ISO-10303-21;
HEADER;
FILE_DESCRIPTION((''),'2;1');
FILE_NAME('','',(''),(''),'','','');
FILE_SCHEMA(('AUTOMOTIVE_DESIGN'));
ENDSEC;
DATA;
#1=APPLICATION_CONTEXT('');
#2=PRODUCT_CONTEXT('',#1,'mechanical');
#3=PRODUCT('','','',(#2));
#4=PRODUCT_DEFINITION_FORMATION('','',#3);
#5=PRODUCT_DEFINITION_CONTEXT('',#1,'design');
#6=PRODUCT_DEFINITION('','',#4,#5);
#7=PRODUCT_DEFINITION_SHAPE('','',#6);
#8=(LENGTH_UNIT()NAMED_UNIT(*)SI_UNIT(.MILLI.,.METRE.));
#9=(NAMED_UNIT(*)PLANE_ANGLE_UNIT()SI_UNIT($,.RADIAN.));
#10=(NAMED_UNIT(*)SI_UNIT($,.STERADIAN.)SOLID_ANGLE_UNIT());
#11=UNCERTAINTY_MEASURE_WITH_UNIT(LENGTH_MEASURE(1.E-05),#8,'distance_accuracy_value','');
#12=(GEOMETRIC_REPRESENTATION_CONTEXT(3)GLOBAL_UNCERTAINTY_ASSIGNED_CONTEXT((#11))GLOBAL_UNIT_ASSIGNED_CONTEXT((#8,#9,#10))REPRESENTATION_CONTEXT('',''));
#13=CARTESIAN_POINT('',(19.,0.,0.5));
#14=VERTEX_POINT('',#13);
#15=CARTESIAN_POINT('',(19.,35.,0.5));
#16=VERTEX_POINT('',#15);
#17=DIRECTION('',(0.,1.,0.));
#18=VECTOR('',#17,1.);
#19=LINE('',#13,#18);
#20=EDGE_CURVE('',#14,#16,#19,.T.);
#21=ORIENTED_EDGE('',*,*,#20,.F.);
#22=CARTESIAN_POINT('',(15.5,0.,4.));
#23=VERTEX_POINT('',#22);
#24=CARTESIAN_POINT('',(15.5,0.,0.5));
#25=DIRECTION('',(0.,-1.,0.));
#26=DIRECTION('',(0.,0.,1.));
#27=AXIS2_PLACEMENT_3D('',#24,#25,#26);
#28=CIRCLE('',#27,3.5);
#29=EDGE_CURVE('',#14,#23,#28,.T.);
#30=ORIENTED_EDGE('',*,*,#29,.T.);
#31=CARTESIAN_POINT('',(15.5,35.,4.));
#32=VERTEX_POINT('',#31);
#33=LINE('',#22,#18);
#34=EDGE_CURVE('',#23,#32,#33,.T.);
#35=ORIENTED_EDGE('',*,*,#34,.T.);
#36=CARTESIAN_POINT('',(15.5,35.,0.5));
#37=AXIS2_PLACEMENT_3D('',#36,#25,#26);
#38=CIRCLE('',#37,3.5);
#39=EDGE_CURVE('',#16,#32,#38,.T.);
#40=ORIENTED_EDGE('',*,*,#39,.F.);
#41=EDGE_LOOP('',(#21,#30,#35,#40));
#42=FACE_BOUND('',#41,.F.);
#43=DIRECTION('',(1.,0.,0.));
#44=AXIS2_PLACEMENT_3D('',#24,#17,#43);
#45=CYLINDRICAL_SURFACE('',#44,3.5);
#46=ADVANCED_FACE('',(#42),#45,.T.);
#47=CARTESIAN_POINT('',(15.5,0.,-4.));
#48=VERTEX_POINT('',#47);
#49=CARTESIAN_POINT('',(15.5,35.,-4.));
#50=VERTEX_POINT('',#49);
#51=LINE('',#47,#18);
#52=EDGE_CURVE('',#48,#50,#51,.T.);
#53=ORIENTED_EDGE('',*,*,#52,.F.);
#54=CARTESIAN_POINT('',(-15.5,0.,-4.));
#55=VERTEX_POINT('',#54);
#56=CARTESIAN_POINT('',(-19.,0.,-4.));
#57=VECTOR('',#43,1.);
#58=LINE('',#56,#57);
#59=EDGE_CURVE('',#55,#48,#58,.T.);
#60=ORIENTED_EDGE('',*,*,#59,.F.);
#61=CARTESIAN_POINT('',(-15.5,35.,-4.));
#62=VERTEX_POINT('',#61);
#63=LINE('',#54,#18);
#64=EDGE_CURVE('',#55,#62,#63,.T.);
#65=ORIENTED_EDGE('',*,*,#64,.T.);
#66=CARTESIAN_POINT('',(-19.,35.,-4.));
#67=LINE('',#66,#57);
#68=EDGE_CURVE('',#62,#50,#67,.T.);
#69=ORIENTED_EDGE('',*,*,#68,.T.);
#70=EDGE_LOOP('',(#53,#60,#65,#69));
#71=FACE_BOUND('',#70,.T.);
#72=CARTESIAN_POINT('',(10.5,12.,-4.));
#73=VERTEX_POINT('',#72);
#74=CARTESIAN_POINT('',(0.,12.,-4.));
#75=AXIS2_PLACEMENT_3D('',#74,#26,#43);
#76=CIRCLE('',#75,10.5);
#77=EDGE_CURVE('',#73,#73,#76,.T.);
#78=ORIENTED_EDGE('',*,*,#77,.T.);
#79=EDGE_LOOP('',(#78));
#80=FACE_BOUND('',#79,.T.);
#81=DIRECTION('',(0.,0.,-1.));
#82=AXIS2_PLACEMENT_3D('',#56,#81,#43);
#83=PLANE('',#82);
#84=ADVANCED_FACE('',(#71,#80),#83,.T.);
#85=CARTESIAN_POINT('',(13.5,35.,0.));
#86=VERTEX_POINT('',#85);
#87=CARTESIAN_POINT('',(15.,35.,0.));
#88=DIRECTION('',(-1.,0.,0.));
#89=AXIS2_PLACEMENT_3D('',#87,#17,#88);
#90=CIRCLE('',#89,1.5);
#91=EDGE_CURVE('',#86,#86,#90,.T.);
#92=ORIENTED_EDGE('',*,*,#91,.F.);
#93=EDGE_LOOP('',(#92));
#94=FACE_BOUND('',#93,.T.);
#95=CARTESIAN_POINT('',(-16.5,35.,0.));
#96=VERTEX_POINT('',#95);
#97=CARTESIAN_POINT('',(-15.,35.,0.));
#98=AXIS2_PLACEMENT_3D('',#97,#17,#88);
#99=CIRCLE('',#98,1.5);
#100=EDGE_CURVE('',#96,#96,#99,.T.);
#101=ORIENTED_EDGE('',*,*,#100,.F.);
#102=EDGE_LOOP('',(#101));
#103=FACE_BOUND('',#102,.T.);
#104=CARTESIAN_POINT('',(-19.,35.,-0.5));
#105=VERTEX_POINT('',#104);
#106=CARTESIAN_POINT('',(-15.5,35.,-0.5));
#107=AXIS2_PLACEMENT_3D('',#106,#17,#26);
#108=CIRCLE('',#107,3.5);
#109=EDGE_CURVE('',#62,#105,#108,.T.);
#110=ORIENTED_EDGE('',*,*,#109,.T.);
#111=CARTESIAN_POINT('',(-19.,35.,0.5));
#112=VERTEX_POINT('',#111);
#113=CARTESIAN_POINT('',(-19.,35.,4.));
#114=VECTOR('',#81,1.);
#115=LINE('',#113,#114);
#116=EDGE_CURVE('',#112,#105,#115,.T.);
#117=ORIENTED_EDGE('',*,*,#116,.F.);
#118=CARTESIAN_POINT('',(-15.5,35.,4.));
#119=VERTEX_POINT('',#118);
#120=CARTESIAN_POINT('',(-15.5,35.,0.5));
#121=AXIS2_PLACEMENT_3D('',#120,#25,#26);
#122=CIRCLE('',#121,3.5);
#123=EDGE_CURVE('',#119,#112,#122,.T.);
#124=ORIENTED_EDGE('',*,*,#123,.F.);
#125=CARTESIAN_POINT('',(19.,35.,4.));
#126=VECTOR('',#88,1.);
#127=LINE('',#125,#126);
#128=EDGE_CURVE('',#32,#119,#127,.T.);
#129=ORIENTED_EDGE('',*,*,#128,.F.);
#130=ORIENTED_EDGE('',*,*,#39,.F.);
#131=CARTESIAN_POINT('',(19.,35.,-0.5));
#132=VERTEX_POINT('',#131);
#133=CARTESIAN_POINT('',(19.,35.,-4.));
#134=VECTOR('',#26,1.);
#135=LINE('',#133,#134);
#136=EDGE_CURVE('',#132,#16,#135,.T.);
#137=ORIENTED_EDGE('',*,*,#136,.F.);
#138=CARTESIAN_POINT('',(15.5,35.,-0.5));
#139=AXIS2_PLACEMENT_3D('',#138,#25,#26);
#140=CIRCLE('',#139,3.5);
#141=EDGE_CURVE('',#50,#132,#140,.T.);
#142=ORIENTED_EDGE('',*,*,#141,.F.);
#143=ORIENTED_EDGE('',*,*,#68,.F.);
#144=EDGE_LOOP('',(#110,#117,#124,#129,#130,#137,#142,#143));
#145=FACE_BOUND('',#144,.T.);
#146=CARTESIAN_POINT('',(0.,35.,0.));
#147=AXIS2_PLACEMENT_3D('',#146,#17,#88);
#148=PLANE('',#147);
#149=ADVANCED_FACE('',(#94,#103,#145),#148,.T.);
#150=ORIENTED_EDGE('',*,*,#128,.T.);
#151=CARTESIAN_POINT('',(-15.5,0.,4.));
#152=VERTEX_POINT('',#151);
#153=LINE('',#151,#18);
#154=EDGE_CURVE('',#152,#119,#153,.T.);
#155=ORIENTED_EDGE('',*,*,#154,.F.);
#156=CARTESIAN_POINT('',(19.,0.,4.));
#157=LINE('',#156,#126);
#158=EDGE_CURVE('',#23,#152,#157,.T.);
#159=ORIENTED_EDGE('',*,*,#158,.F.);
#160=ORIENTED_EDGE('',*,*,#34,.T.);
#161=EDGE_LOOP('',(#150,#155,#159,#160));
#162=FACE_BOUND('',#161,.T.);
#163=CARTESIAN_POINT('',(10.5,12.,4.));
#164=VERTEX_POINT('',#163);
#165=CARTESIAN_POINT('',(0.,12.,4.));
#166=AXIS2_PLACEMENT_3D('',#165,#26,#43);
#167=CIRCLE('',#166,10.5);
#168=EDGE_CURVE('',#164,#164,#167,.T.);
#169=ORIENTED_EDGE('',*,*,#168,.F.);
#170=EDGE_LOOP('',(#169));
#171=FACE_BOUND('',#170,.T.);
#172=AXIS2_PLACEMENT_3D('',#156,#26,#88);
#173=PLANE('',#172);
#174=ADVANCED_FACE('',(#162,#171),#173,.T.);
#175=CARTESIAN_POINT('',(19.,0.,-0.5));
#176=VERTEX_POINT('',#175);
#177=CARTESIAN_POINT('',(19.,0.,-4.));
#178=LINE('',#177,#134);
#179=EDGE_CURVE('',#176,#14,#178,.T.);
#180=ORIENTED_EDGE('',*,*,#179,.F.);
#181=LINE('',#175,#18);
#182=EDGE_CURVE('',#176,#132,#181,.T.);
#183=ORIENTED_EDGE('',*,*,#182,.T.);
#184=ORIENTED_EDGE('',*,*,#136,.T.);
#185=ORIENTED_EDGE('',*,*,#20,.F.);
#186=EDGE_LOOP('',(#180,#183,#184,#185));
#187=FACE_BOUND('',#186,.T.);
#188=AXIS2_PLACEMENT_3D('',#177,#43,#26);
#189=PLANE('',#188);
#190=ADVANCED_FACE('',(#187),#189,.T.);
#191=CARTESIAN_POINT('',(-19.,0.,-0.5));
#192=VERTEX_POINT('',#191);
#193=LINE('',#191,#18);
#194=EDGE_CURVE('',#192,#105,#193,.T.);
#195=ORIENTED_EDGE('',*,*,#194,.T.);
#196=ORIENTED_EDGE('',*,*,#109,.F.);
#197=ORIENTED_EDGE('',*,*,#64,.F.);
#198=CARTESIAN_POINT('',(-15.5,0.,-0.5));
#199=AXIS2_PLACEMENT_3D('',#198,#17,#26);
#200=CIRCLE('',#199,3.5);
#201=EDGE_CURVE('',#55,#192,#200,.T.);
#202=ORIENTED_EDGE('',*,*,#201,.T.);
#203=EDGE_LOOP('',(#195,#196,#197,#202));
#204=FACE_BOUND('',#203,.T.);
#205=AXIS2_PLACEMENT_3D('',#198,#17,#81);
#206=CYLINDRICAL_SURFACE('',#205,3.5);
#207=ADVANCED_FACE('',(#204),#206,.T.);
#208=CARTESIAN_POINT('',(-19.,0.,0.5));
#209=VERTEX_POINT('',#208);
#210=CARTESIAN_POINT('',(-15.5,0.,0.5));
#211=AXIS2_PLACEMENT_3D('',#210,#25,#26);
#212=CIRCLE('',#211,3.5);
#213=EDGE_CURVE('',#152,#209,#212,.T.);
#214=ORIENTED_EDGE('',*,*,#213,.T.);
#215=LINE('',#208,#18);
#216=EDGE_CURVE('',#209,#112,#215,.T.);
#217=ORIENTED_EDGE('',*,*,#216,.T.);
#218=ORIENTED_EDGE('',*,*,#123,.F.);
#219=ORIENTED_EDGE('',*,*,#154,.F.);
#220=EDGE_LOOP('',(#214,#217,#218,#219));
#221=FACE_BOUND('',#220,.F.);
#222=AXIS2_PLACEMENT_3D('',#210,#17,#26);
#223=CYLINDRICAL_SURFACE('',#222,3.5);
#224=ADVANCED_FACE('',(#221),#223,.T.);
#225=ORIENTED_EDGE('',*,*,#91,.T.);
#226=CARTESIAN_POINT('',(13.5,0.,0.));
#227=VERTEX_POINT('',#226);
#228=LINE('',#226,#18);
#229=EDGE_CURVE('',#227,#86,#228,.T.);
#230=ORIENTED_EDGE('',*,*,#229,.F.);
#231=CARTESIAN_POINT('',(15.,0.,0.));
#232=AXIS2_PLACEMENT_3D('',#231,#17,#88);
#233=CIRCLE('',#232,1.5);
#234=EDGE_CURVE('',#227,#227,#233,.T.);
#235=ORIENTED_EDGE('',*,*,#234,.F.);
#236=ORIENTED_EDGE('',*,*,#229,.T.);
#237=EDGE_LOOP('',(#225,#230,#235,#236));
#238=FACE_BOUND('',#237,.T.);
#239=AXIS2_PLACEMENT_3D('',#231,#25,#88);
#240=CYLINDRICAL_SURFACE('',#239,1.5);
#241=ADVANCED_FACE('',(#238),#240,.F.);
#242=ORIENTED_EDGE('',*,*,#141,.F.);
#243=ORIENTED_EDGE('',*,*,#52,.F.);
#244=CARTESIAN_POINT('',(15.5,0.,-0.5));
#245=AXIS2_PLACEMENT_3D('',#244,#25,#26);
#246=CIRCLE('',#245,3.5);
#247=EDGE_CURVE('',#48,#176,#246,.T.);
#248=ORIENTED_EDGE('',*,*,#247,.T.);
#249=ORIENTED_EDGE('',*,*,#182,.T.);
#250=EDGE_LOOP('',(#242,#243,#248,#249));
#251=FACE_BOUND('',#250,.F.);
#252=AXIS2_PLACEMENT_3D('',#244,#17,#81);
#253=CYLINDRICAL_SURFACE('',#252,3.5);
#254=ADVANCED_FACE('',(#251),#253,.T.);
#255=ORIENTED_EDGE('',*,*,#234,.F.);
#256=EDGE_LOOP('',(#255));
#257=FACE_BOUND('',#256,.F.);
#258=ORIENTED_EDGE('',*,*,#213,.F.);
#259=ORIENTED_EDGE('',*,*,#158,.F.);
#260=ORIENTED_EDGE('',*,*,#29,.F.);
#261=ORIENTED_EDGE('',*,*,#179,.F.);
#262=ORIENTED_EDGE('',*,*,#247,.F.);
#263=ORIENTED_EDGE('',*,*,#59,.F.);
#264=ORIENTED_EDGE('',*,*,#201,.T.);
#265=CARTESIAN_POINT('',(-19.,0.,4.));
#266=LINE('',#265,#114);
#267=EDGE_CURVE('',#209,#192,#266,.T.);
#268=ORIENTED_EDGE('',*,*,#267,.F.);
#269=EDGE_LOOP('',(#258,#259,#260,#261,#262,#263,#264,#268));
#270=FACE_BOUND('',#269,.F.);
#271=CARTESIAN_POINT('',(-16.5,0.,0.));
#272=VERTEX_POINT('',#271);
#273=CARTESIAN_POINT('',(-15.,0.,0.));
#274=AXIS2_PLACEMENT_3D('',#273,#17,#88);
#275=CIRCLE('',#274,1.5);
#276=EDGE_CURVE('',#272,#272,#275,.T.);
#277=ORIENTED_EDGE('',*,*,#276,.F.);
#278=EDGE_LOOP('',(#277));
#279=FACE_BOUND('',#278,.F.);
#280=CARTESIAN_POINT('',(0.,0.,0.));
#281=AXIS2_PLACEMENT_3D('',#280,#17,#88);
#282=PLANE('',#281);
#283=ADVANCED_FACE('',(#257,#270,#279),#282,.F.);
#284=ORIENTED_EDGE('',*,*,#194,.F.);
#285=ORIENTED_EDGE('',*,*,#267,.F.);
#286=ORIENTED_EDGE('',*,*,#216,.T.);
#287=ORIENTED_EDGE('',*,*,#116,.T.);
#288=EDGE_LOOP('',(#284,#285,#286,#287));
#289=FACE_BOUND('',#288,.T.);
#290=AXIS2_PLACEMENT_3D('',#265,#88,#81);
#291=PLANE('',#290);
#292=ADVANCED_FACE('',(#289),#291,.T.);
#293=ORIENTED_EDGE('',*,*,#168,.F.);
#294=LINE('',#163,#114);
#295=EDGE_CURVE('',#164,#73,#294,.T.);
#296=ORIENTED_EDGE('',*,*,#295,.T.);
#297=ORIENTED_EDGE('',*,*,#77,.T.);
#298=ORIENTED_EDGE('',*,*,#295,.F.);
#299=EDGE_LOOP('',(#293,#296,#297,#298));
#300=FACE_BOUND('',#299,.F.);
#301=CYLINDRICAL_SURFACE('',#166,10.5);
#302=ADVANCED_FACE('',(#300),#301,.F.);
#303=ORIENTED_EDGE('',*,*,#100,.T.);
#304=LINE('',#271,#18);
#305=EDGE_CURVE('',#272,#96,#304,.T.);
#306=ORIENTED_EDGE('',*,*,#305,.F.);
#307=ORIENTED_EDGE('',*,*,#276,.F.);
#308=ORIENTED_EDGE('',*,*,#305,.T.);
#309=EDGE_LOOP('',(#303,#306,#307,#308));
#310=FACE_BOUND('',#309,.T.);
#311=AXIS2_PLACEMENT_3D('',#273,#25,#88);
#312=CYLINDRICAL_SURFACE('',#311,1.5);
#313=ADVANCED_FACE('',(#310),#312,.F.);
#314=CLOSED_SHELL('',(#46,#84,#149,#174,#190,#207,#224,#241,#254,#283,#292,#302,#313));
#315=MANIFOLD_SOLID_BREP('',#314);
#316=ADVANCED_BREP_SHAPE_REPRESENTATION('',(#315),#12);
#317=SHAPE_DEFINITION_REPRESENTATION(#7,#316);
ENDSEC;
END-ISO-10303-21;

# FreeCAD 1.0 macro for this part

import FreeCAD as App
import Part
import Sketcher


def edges_at(feature, points):
    """Names of the edges that pass closest to the given points."""
    edges = feature.Shape.Edges
    near = lambda p: min(range(len(edges)), key=lambda i: edges[i].distToShape(Part.Vertex(*p))[0])
    return sorted({f"Edge{near(p) + 1}" for p in points})


def add_polygon(sketch, points):
    """Adds a closed chain of lines whose ends are joined by coincident constraints."""
    first, n = sketch.GeometryCount, len(points)
    for a, b in zip(points, points[1:] + points[:1]):
        sketch.addGeometry(Part.LineSegment(App.Vector(*a, 0), App.Vector(*b, 0)), False)
    for i in range(n):
        sketch.addConstraint(Sketcher.Constraint("Coincident", first + i, 2, first + (i + 1) % n, 1))

doc = App.newDocument("Part")
body = doc.addObject("PartDesign::Body", "Body")

sketch1 = body.newObject("Sketcher::SketchObject", "Sketch")
sketch1.AttachmentSupport = (doc.getObject("XZ_Plane"), [""])
sketch1.MapMode = "FlatFace"
add_polygon(sketch1, [(19, -4), (-19, -4), (-19, 4), (19, 4)])
sketch1.addGeometry(Part.Circle(App.Vector(15, 0, 0), App.Vector(0, 0, 1), 1.5), False)
sketch1.addGeometry(Part.Circle(App.Vector(-15, 0, 0), App.Vector(0, 0, 1), 1.5), False)
sketch1.addConstraint([
    Sketcher.Constraint("Horizontal", 0),
    Sketcher.Constraint("Vertical", 1),
    Sketcher.Constraint("Horizontal", 2),
    Sketcher.Constraint("Vertical", 3),
    Sketcher.Constraint("Equal", 4, 5),
    Sketcher.Constraint("Symmetric", 4, 3, 5, 3, -1, 1),
    Sketcher.Constraint("Symmetric", 0, 2, 2, 2, -1, 1),
    Sketcher.Constraint("PointOnObject", 4, 3, -1),
    Sketcher.Constraint("Diameter", 4, 3.0),
    Sketcher.Constraint("DistanceX", 0, 2, 0, 1, 38.0),
    Sketcher.Constraint("DistanceY", 1, 1, 1, 2, 8.0),
    Sketcher.Constraint("DistanceX", 5, 3, 4, 3, 30.0),
])
pad1 = body.newObject("PartDesign::Pad", "Pad")
pad1.Profile = sketch1
pad1.Length = 35
pad1.Reversed = True
doc.recompute()

fillet = body.newObject("PartDesign::Fillet", "Fillet")
fillet.Base = (pad1, edges_at(pad1, [
    (19, 17.5, 4),
    (19, 17.5, -4),
    (-19, 17.5, 4),
    (-19, 17.5, -4),
]))
fillet.Radius = 3.5

sketch2 = body.newObject("Sketcher::SketchObject", "Sketch001")
sketch2.AttachmentSupport = (doc.getObject("XY_Plane"), [""])
sketch2.MapMode = "FlatFace"
sketch2.AttachmentOffset = App.Placement(App.Vector(0, 0, 4), App.Rotation())
sketch2.addGeometry(Part.Circle(App.Vector(0, 12, 0), App.Vector(0, 0, 1), 10), False)
sketch2.addConstraint([
    Sketcher.Constraint("PointOnObject", 0, 3, -2),
    Sketcher.Constraint("Diameter", 0, 21.0),
    Sketcher.Constraint("DistanceY", -1, 1, 0, 3, 12.0),
])
pocket1 = body.newObject("PartDesign::Pocket", "Pocket")
pocket1.Profile = sketch2
pocket1.Length = 35

doc.recompute()
